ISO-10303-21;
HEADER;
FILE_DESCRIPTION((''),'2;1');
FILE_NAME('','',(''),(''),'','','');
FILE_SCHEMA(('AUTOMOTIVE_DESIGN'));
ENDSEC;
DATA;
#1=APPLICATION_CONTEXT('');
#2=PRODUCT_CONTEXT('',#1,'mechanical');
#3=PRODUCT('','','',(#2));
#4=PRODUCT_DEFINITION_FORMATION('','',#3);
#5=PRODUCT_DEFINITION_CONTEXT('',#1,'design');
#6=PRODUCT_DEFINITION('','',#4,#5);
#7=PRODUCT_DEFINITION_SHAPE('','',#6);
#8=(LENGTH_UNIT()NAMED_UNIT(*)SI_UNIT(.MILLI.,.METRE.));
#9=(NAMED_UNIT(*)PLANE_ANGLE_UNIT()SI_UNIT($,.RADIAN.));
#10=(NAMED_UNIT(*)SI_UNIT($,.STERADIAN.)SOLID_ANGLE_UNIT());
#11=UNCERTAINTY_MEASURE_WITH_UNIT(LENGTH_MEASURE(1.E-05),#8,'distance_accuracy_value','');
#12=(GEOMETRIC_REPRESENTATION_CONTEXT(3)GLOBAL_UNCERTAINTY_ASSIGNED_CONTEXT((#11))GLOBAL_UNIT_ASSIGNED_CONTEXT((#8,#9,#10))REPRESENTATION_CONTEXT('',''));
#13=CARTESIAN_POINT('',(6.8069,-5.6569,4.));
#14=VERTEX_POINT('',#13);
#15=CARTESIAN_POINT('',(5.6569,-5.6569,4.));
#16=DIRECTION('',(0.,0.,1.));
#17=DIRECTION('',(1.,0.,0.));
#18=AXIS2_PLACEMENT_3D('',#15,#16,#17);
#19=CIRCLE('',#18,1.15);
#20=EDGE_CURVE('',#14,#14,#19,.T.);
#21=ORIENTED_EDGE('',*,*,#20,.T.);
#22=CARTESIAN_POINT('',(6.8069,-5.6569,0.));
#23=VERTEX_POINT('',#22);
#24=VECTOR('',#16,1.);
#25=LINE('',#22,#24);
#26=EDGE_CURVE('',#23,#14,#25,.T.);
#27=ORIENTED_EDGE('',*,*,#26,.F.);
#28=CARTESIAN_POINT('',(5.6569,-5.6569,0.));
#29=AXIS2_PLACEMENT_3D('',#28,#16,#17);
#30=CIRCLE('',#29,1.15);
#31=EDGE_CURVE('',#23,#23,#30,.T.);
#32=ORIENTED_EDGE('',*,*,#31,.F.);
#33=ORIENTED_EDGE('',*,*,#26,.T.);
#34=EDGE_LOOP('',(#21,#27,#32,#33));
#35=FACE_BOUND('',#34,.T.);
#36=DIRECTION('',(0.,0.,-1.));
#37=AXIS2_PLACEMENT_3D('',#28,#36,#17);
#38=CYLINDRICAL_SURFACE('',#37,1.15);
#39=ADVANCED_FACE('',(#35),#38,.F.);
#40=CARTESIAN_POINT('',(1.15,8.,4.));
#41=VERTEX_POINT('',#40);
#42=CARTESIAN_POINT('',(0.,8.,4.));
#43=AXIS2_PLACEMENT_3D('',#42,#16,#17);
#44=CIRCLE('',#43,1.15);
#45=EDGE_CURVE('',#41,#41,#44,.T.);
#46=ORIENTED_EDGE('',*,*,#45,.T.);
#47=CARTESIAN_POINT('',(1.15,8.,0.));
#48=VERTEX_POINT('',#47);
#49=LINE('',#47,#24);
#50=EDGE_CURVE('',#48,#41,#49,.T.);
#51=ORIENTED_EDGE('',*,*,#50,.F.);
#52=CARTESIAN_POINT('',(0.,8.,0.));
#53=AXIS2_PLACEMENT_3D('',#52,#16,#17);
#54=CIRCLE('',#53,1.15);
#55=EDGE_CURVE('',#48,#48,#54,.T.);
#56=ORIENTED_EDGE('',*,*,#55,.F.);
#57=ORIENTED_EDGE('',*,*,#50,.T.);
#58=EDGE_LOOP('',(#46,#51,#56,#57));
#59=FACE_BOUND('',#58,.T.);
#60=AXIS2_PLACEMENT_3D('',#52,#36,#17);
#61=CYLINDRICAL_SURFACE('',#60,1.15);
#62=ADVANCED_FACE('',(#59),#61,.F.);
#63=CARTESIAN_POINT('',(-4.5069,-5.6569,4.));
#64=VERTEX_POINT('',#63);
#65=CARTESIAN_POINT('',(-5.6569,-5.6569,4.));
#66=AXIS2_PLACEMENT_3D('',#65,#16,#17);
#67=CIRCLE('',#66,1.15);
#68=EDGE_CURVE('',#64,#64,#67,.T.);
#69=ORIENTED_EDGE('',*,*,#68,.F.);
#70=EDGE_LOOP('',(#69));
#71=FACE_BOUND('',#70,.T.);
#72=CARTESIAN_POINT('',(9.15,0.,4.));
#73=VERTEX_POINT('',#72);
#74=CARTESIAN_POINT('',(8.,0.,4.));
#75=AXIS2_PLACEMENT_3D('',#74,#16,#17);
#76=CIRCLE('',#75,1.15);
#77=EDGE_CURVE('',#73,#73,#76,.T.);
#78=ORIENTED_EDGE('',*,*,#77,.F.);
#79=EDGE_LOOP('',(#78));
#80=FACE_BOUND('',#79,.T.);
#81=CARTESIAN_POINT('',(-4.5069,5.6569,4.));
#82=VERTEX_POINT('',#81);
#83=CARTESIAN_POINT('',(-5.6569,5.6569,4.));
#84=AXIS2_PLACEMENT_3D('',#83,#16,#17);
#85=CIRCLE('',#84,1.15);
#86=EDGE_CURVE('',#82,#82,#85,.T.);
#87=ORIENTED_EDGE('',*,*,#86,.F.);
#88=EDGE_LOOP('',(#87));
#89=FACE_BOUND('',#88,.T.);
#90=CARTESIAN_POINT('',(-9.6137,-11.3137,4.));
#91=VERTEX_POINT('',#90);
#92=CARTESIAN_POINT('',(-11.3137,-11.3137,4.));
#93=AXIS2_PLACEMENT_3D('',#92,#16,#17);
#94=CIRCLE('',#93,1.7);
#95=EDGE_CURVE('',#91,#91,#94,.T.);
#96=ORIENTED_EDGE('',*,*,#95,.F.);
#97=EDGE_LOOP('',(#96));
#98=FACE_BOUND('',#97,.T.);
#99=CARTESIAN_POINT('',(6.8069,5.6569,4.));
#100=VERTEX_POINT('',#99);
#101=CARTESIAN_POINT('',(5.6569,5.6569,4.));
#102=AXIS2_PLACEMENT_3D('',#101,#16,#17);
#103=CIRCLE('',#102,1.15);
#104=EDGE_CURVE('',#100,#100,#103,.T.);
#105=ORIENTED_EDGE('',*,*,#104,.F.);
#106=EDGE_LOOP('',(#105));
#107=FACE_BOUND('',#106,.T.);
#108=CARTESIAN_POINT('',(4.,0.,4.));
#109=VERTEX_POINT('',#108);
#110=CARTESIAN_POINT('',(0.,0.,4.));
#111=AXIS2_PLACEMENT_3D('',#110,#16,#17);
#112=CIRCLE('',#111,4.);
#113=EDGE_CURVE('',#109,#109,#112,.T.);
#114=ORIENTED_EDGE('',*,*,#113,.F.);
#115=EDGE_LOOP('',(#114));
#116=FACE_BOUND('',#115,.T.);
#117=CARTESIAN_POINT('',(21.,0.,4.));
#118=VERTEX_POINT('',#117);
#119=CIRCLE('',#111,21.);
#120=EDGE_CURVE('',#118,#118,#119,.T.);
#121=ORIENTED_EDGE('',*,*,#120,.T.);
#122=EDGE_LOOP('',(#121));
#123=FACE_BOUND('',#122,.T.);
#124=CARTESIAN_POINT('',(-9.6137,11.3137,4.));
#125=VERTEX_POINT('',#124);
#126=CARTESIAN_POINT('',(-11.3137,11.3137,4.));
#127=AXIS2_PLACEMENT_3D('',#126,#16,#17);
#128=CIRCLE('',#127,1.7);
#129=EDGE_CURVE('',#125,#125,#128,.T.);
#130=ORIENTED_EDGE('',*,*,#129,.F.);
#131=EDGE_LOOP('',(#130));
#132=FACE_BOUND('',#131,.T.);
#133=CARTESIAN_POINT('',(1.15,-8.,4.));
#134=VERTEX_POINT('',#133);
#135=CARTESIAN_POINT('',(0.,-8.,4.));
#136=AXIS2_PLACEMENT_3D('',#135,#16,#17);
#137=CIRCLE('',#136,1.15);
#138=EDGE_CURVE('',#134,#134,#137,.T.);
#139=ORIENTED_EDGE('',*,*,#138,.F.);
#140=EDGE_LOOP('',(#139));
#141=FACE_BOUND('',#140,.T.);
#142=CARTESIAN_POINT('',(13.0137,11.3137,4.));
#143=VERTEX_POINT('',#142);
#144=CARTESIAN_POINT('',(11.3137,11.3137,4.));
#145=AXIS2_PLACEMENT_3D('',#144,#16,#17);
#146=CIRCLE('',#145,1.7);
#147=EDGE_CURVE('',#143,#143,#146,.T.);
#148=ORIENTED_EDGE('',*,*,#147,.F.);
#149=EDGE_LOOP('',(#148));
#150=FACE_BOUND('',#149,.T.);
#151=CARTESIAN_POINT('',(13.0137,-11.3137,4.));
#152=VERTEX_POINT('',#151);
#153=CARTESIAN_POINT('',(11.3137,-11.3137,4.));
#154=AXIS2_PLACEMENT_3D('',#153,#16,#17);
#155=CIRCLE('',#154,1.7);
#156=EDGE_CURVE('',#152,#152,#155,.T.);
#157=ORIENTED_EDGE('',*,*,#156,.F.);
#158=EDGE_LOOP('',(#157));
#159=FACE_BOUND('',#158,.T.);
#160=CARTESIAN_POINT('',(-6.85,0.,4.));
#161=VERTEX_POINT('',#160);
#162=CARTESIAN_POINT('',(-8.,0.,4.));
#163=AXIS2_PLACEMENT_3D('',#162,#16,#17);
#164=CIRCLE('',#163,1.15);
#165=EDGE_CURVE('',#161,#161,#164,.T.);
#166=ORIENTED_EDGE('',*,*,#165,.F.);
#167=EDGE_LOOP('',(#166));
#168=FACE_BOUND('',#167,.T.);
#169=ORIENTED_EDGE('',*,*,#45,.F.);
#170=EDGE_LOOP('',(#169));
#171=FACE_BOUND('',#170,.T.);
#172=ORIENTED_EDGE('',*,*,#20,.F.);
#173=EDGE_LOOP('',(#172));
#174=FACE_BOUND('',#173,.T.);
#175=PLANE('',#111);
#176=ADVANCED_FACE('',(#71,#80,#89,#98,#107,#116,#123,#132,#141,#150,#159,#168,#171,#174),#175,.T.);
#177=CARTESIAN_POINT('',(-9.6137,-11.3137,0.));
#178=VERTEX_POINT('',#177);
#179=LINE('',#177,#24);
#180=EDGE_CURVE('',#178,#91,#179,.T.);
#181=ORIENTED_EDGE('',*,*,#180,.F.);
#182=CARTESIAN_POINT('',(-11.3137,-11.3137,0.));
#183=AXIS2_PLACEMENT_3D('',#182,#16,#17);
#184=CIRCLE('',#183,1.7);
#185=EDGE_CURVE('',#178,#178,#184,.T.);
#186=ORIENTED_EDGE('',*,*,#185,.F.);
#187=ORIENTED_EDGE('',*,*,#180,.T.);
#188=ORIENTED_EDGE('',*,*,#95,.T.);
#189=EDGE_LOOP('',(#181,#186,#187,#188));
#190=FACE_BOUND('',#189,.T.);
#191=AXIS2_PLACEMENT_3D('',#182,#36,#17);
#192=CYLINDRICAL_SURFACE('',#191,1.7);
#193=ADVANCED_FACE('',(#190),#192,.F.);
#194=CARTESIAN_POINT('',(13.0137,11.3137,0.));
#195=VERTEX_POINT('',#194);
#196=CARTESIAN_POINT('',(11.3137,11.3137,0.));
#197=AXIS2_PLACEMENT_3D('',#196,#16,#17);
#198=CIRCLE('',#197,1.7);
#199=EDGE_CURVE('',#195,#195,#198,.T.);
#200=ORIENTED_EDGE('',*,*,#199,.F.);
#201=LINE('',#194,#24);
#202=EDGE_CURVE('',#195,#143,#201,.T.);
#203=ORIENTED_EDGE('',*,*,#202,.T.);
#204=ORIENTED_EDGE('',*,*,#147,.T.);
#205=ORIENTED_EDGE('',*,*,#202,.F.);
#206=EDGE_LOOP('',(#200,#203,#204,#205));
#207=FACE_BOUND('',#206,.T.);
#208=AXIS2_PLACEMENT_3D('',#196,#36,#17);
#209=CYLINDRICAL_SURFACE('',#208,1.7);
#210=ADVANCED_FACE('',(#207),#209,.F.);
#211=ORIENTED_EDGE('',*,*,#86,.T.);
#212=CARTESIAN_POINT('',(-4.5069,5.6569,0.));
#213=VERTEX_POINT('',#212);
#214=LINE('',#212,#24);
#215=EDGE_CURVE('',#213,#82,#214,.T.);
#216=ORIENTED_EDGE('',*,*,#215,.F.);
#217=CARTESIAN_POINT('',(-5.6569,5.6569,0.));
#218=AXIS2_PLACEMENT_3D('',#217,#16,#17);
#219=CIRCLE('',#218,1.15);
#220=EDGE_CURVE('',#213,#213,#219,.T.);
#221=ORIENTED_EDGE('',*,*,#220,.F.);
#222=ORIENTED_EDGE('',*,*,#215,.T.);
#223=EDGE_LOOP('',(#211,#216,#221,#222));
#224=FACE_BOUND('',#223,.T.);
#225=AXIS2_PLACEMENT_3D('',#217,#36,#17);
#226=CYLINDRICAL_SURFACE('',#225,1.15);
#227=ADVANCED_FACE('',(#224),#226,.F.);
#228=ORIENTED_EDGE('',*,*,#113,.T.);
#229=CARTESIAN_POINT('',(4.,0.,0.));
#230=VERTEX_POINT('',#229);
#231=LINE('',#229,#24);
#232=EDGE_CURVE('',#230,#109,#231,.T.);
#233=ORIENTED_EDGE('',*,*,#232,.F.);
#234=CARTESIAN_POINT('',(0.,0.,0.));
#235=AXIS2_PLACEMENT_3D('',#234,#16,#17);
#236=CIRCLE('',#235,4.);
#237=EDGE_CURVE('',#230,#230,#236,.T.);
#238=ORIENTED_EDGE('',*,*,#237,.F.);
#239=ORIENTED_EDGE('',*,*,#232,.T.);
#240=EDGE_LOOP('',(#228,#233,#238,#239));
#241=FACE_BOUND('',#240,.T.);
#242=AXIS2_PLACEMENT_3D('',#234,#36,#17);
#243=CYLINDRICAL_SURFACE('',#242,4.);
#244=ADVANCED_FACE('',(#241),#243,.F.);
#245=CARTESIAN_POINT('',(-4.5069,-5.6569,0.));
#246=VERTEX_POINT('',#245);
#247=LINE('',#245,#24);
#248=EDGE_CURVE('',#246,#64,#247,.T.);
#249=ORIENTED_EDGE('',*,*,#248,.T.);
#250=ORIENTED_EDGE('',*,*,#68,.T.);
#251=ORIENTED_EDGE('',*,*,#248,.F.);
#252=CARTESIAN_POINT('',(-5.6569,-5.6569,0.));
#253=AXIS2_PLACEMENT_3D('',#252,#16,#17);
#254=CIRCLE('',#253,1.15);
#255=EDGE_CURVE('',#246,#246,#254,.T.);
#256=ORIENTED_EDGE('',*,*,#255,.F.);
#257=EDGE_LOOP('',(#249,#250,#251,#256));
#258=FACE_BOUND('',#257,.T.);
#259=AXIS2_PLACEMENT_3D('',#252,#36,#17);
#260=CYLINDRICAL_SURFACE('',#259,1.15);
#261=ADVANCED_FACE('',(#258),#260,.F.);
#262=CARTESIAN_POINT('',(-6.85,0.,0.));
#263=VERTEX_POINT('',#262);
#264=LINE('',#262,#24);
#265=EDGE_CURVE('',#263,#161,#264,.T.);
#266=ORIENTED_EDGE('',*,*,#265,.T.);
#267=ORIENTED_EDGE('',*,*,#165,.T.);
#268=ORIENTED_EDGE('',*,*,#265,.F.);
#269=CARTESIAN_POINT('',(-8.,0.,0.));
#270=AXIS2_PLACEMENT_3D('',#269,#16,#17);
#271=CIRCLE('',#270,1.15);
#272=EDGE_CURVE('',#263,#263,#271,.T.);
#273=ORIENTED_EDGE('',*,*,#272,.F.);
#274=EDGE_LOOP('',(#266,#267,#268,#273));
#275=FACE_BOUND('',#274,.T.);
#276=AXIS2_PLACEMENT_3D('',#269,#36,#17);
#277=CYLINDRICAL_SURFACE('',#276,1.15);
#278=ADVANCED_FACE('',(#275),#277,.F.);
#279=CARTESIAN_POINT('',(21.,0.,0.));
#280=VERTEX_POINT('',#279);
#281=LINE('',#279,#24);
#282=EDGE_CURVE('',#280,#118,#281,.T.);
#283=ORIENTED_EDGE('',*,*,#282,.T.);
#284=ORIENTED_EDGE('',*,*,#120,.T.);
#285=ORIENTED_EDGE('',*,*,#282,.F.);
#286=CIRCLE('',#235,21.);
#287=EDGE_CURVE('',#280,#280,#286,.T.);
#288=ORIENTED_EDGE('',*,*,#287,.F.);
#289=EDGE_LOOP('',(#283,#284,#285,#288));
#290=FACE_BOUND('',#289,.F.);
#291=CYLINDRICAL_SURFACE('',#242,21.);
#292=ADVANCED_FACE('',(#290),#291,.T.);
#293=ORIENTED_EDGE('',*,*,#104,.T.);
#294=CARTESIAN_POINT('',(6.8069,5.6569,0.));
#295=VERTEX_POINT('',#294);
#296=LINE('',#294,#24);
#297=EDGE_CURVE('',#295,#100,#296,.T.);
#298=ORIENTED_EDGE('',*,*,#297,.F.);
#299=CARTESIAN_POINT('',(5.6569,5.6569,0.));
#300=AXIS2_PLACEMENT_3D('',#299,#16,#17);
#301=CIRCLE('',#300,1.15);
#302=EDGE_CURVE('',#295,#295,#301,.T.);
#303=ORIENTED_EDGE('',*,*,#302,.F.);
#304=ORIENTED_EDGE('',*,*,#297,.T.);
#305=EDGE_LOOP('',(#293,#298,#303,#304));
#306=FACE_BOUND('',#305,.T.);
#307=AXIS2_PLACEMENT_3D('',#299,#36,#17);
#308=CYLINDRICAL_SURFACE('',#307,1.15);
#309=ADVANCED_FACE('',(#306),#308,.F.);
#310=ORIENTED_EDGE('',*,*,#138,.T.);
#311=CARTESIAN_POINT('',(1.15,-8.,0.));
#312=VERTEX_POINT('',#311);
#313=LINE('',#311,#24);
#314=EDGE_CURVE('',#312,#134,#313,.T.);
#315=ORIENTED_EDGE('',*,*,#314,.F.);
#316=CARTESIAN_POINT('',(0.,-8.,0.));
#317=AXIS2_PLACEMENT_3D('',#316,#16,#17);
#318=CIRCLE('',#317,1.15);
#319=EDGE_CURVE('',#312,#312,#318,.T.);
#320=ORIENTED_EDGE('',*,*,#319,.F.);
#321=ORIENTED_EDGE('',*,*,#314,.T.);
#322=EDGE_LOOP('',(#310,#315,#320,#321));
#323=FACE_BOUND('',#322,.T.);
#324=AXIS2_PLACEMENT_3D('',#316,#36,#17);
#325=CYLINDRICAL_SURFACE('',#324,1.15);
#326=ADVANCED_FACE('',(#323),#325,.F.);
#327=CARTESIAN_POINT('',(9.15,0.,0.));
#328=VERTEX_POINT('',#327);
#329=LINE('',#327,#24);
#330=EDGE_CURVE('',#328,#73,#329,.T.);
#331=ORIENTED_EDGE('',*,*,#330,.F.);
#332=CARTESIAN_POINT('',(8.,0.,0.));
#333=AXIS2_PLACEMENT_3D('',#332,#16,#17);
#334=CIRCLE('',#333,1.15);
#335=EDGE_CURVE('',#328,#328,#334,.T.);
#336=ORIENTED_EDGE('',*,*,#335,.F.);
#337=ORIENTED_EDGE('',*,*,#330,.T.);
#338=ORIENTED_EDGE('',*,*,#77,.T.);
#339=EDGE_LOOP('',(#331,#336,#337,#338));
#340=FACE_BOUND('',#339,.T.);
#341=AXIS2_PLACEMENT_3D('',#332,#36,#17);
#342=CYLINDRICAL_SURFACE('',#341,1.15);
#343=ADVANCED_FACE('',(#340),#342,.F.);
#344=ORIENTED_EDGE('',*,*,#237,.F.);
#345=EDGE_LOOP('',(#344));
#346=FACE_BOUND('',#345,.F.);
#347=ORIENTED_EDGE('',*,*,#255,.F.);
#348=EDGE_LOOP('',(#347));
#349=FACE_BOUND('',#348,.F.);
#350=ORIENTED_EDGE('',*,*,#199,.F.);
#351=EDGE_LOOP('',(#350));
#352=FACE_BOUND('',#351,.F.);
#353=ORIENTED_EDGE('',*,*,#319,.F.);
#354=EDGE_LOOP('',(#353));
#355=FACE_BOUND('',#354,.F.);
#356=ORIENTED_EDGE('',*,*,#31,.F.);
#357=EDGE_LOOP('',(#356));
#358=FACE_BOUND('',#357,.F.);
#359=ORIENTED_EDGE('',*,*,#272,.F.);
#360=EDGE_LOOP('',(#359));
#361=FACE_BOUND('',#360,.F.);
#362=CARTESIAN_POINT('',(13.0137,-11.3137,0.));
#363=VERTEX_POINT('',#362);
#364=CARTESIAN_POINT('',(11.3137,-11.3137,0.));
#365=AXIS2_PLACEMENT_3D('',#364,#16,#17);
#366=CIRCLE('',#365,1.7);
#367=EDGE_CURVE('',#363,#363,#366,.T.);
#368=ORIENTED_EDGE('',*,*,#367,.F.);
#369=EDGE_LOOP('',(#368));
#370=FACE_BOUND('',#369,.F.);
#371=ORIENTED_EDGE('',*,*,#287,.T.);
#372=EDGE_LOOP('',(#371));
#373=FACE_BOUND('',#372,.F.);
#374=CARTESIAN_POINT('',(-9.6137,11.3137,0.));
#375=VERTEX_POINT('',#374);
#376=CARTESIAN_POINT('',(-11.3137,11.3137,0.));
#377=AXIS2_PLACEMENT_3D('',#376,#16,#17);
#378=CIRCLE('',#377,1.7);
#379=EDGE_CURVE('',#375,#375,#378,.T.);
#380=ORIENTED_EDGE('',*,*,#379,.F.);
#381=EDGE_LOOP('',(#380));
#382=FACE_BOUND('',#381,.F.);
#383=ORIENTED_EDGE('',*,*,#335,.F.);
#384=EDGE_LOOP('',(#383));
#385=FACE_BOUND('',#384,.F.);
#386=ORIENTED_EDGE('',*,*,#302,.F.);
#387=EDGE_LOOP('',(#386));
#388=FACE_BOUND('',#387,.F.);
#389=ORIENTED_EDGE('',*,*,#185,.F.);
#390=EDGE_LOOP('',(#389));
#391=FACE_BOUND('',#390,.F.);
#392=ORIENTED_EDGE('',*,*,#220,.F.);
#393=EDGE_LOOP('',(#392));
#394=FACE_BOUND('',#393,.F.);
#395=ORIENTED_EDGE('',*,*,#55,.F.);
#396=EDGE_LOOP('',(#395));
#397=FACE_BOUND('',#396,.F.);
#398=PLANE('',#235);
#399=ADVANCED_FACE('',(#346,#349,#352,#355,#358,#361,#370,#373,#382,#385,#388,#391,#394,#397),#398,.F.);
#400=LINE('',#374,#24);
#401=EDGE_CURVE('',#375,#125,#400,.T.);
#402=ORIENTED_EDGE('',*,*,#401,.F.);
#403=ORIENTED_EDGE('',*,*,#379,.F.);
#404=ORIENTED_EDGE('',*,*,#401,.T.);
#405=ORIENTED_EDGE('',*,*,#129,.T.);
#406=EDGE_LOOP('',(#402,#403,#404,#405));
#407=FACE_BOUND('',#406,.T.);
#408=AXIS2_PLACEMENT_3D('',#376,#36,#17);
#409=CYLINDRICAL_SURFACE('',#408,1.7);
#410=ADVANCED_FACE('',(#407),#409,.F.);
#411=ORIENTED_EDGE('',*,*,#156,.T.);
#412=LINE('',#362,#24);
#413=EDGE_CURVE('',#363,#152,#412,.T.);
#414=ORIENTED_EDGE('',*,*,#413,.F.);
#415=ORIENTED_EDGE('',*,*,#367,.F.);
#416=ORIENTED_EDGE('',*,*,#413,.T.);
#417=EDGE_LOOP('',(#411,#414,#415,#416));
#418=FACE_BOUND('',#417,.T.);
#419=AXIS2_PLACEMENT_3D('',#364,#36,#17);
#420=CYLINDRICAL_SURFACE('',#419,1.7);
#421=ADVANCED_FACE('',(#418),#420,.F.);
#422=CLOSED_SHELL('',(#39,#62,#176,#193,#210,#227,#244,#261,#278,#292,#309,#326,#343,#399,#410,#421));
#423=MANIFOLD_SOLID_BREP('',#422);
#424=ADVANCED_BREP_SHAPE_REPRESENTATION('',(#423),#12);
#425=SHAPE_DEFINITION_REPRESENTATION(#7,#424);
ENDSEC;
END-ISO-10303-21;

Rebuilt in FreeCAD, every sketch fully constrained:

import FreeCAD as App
import Part
import Sketcher
Q = App.Units.Quantity

doc = App.newDocument("Part")
params = doc.addObject("Spreadsheet::Sheet", "Params")
for row, (alias, value) in enumerate([
    ("sketch1_diameter", "42 mm"),
    ("sketch1_diameter2", "8 mm"),
    ("sketch1_diameter3", "3.4 mm"),
    ("sketch1_diameter4", "2.3 mm"),
    ("pad1_length", "4 mm"),
], start=1):
    params.set(f"A{row}", alias)
    params.set(f"B{row}", "=" + value)
    params.setAlias(f"B{row}", alias)

body = doc.addObject("PartDesign::Body", "Body")

# Sketch on XY plane
sketch1 = doc.addObject("Sketcher::SketchObject", "Sketch")
body.addObject(sketch1)
sketch1.AttachmentSupport = (doc.XY_Plane, [""])
sketch1.MapMode = "FlatFace"
sketch1.addGeometry([
    Part.Circle(App.Vector(0, 0, 0), App.Vector(0, 0, 1), 21),  # 0
    Part.Circle(App.Vector(-11.3, -11.3, 0), App.Vector(0, 0, 1), 1.7),  # 1
    Part.Circle(App.Vector(-5.7, -5.7, 0), App.Vector(0, 0, 1), 1.1),  # 2
    Part.Circle(App.Vector(11.3, -11.3, 0), App.Vector(0, 0, 1), 1.7),  # 3
    Part.Circle(App.Vector(0, -8, 0), App.Vector(0, 0, 1), 1.1),  # 4
    Part.Circle(App.Vector(5.7, -5.7, 0), App.Vector(0, 0, 1), 1.1),  # 5
    Part.Circle(App.Vector(-8, 0, 0), App.Vector(0, 0, 1), 1.1),  # 6
    Part.Circle(App.Vector(-5.7, 5.7, 0), App.Vector(0, 0, 1), 1.1),  # 7
    Part.Circle(App.Vector(-11.3, 11.3, 0), App.Vector(0, 0, 1), 1.7),  # 8
    Part.Circle(App.Vector(0, 0, 0), App.Vector(0, 0, 1), 4),  # 9
    Part.Circle(App.Vector(8, 0, 0), App.Vector(0, 0, 1), 1.1),  # 10
    Part.Circle(App.Vector(0, 8, 0), App.Vector(0, 0, 1), 1.1),  # 11
    Part.Circle(App.Vector(5.7, 5.7, 0), App.Vector(0, 0, 1), 1.1),  # 12
    Part.Circle(App.Vector(11.3, 11.3, 0), App.Vector(0, 0, 1), 1.7),  # 13
], False)
sketch1.addConstraint([
    Sketcher.Constraint("Coincident", 0, 3, -1, 1),
    Sketcher.Constraint("Coincident", 9, 3, -1, 1),
    Sketcher.Constraint("Equal", 1, 3),
    Sketcher.Constraint("Equal", 2, 4),
    Sketcher.Constraint("Equal", 4, 5),
    Sketcher.Constraint("Equal", 5, 6),
    Sketcher.Constraint("Equal", 6, 7),
    Sketcher.Constraint("Equal", 3, 8),
    Sketcher.Constraint("Equal", 7, 10),
    Sketcher.Constraint("Equal", 10, 11),
    Sketcher.Constraint("Equal", 11, 12),
    Sketcher.Constraint("Equal", 8, 13),
    Sketcher.Constraint("Symmetric", 5, 3, 7, 3, -1, 1),
    Sketcher.Constraint("Symmetric", 3, 3, 8, 3, -1, 1),
    Sketcher.Constraint("Symmetric", 6, 3, 10, 3, -1, 1),
    Sketcher.Constraint("Symmetric", 4, 3, 11, 3, -1, 1),
    Sketcher.Constraint("Symmetric", 2, 3, 12, 3, -1, 1),
    Sketcher.Constraint("Symmetric", 1, 3, 13, 3, -1, 1),
    Sketcher.Constraint("Symmetric", 1, 3, 3, 3, -2),
    Sketcher.Constraint("Symmetric", 2, 3, 5, 3, -2),
    Sketcher.Constraint("PointOnObject", 4, 3, -2),
    Sketcher.Constraint("PointOnObject", 6, 3, -1),
    Sketcher.Constraint("Diameter", 0, Q("42 mm")),
    Sketcher.Constraint("Diameter", 9, Q("8 mm")),
    Sketcher.Constraint("Diameter", 1, Q("3.4 mm")),
    Sketcher.Constraint("Diameter", 2, Q("2.3 mm")),
    Sketcher.Constraint("DistanceY", 4, 3, -1, 1, Q("8 mm")),
    Sketcher.Constraint("DistanceX", 6, 3, -1, 1, Q("8 mm")),
    Sketcher.Constraint("DistanceX", 2, 3, -1, 1, Q("5.657 mm")),
    Sketcher.Constraint("DistanceY", 2, 3, -1, 1, Q("5.657 mm")),
    Sketcher.Constraint("DistanceX", 1, 3, -1, 1, Q("11.3137 mm")),
    Sketcher.Constraint("DistanceY", 1, 3, -1, 1, Q("11.3137 mm")),
])
sketch1.setExpression("Constraints[22]", "Params.sketch1_diameter")
sketch1.setExpression("Constraints[23]", "Params.sketch1_diameter2")
sketch1.setExpression("Constraints[24]", "Params.sketch1_diameter3")
sketch1.setExpression("Constraints[25]", "Params.sketch1_diameter4")
pad1 = doc.addObject("PartDesign::Pad", "Pad")
body.addObject(pad1)
pad1.Profile = sketch1
pad1.setExpression("Length", "Params.pad1_length")

doc.recompute()
